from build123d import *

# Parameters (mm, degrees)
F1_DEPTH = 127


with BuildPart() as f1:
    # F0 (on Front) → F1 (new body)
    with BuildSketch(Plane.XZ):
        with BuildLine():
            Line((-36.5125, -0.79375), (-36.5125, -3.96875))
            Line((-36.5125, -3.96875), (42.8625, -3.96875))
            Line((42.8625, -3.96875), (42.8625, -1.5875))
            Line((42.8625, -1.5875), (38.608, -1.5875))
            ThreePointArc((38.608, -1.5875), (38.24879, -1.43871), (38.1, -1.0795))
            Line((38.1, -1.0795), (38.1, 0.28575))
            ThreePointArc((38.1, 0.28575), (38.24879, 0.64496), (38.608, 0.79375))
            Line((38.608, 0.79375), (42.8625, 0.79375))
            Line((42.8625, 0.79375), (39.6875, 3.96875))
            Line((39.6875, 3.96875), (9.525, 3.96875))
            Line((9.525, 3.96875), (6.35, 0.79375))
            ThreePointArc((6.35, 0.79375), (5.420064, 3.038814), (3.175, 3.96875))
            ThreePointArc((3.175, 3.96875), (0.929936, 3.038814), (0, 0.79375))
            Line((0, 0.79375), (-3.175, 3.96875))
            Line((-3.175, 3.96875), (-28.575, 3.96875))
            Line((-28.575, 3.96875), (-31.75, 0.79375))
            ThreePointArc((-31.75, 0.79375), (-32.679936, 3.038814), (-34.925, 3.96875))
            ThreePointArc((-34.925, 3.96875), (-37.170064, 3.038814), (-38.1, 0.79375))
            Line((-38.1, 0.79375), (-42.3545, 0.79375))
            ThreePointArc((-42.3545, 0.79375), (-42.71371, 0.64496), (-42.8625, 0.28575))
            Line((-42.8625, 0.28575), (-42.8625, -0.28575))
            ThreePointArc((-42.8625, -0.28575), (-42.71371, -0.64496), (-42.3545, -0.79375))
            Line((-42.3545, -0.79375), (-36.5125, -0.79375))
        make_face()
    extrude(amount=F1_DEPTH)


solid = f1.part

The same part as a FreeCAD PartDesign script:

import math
import FreeCAD as App
import Part
import Sketcher
from FreeCAD import Vector
Q = App.Units.Quantity

doc = App.newDocument("Part")
body = doc.addObject("PartDesign::Body", "Body")

# Sketch on XZ plane
sketch1 = body.newObject("Sketcher::SketchObject", "Sketch")
sketch1.AttachmentSupport = (doc.getObject("XZ_Plane"), [""])
sketch1.MapMode = "FlatFace"
sketch1.addGeometry(Part.LineSegment(Vector(-36.5, -0.8, 0), Vector(-36.5, -4, 0)), False)
sketch1.addGeometry(Part.LineSegment(Vector(-36.5, -4, 0), Vector(42.9, -4, 0)), False)
sketch1.addGeometry(Part.LineSegment(Vector(42.9, -4, 0), Vector(42.9, -1.6, 0)), False)
sketch1.addGeometry(Part.LineSegment(Vector(42.9, -1.6, 0), Vector(38.6, -1.6, 0)), False)
sketch1.addGeometry(Part.ArcOfCircle(Part.Circle(Vector(38.6, -1.1, 0), Vector(0, 0, 1), 0.5), math.radians(-180), math.radians(-90)), False)
sketch1.addGeometry(Part.LineSegment(Vector(38.1, -1.1, 0), Vector(38.1, 0.3, 0)), False)
sketch1.addGeometry(Part.ArcOfCircle(Part.Circle(Vector(38.6, 0.3, 0), Vector(0, 0, 1), 0.5), math.radians(90), math.radians(180)), False)
sketch1.addGeometry(Part.LineSegment(Vector(38.6, 0.8, 0), Vector(42.9, 0.8, 0)), False)
sketch1.addGeometry(Part.LineSegment(Vector(42.9, 0.8, 0), Vector(39.7, 4, 0)), False)
sketch1.addGeometry(Part.LineSegment(Vector(39.7, 4, 0), Vector(9.5, 4, 0)), False)
sketch1.addGeometry(Part.LineSegment(Vector(9.5, 4, 0), Vector(6.3, 0.8, 0)), False)
sketch1.addGeometry(Part.ArcOfCircle(Part.Circle(Vector(3.2, 0.8, 0), Vector(0, 0, 1), 3.2), math.radians(0), math.radians(90)), False)
sketch1.addGeometry(Part.ArcOfCircle(Part.Circle(Vector(3.2, 0.8, 0), Vector(0, 0, 1), 3.2), math.radians(90), math.radians(180)), False)
sketch1.addGeometry(Part.LineSegment(Vector(0, 0.8, 0), Vector(-3.2, 4, 0)), False)
sketch1.addGeometry(Part.LineSegment(Vector(-3.2, 4, 0), Vector(-28.6, 4, 0)), False)
sketch1.addGeometry(Part.LineSegment(Vector(-28.6, 4, 0), Vector(-31.8, 0.8, 0)), False)
sketch1.addGeometry(Part.ArcOfCircle(Part.Circle(Vector(-34.9, 0.8, 0), Vector(0, 0, 1), 3.2), math.radians(0), math.radians(90)), False)
sketch1.addGeometry(Part.ArcOfCircle(Part.Circle(Vector(-34.9, 0.8, 0), Vector(0, 0, 1), 3.2), math.radians(90), math.radians(180)), False)
sketch1.addGeometry(Part.LineSegment(Vector(-38.1, 0.8, 0), Vector(-42.4, 0.8, 0)), False)
sketch1.addGeometry(Part.ArcOfCircle(Part.Circle(Vector(-42.4, 0.3, 0), Vector(0, 0, 1), 0.5), math.radians(90), math.radians(180)), False)
sketch1.addGeometry(Part.LineSegment(Vector(-42.9, 0.3, 0), Vector(-42.9, -0.3, 0)), False)
sketch1.addGeometry(Part.ArcOfCircle(Part.Circle(Vector(-42.4, -0.3, 0), Vector(0, 0, 1), 0.5), math.radians(-180), math.radians(-90)), False)
sketch1.addGeometry(Part.LineSegment(Vector(-42.4, -0.8, 0), Vector(-36.5, -0.8, 0)), False)
sketch1.addConstraint(Sketcher.Constraint("Coincident", 0, 2, 1, 1))
sketch1.addConstraint(Sketcher.Constraint("Coincident", 1, 2, 2, 1))
sketch1.addConstraint(Sketcher.Constraint("Coincident", 2, 2, 3, 1))
sketch1.addConstraint(Sketcher.Constraint("Tangent", 3, 2, 4, 2))
sketch1.addConstraint(Sketcher.Constraint("Tangent", 4, 1, 5, 1))
sketch1.addConstraint(Sketcher.Constraint("Tangent", 5, 2, 6, 2))
sketch1.addConstraint(Sketcher.Constraint("Tangent", 6, 1, 7, 1))
sketch1.addConstraint(Sketcher.Constraint("Coincident", 7, 2, 8, 1))
sketch1.addConstraint(Sketcher.Constraint("Coincident", 8, 2, 9, 1))
sketch1.addConstraint(Sketcher.Constraint("Coincident", 9, 2, 10, 1))
sketch1.addConstraint(Sketcher.Constraint("Coincident", 10, 2, 11, 1))
sketch1.addConstraint(Sketcher.Constraint("Tangent", 11, 2, 12, 1))
sketch1.addConstraint(Sketcher.Constraint("Coincident", 12, 2, 13, 1))
sketch1.addConstraint(Sketcher.Constraint("Coincident", 13, 2, 14, 1))
sketch1.addConstraint(Sketcher.Constraint("Coincident", 14, 2, 15, 1))
sketch1.addConstraint(Sketcher.Constraint("Coincident", 15, 2, 16, 1))
sketch1.addConstraint(Sketcher.Constraint("Tangent", 16, 2, 17, 1))
sketch1.addConstraint(Sketcher.Constraint("Coincident", 17, 2, 18, 1))
sketch1.addConstraint(Sketcher.Constraint("Tangent", 18, 2, 19, 1))
sketch1.addConstraint(Sketcher.Constraint("Tangent", 19, 2, 20, 1))
sketch1.addConstraint(Sketcher.Constraint("Tangent", 20, 2, 21, 1))
sketch1.addConstraint(Sketcher.Constraint("Tangent", 21, 2, 22, 1))
sketch1.addConstraint(Sketcher.Constraint("Coincident", 22, 2, 0, 1))
sketch1.addConstraint(Sketcher.Constraint("Vertical", 0))
sketch1.addConstraint(Sketcher.Constraint("Horizontal", 1))
sketch1.addConstraint(Sketcher.Constraint("Vertical", 2))
sketch1.addConstraint(Sketcher.Constraint("Horizontal", 3))
sketch1.addConstraint(Sketcher.Constraint("Vertical", 5))
sketch1.addConstraint(Sketcher.Constraint("Horizontal", 7))
sketch1.addConstraint(Sketcher.Constraint("Horizontal", 9))
sketch1.addConstraint(Sketcher.Constraint("Horizontal", 14))
sketch1.addConstraint(Sketcher.Constraint("Horizontal", 18))
sketch1.addConstraint(Sketcher.Constraint("Vertical", 20))
sketch1.addConstraint(Sketcher.Constraint("Horizontal", 22))
sketch1.addConstraint(Sketcher.Constraint("Equal", 4, 6))
sketch1.addConstraint(Sketcher.Constraint("Equal", 11, 12))
sketch1.addConstraint(Sketcher.Constraint("Equal", 12, 16))
sketch1.addConstraint(Sketcher.Constraint("Equal", 16, 17))
sketch1.addConstraint(Sketcher.Constraint("Equal", 6, 19))
sketch1.addConstraint(Sketcher.Constraint("Equal", 19, 21))
sketch1.addConstraint(Sketcher.Constraint("Symmetric", 11, 2, 13, 2, -2))
sketch1.addConstraint(Sketcher.Constraint("PointOnObject", 12, 2, -2))
sketch1.addConstraint(Sketcher.Constraint("Perpendicular", 8, 10))
sketch1.addConstraint(Sketcher.Constraint("Perpendicular", 10, 13))
sketch1.addConstraint(Sketcher.Constraint("Perpendicular", 13, 15))
sketch1.addConstraint(Sketcher.Constraint("Horizontal", 12, 3, 16, 3))
sketch1.addConstraint(Sketcher.Constraint("Horizontal", 6, 3, 19, 3))
sketch1.addConstraint(Sketcher.Constraint("Horizontal", 17, 3, 6, 1))
sketch1.addConstraint(Sketcher.Constraint("Horizontal", 7, 2, 10, 2))
sketch1.addConstraint(Sketcher.Constraint("Horizontal", 9, 2, 11, 2))
sketch1.addConstraint(Sketcher.Constraint("Horizontal", 10, 2, 12, 2))
sketch1.addConstraint(Sketcher.Constraint("Horizontal", 12, 2, 15, 2))
sketch1.addConstraint(Sketcher.Constraint("Vertical", 2, 2, 7, 2))
sketch1.addConstraint(Sketcher.Constraint("Vertical", 12, 3, 11, 2))
sketch1.addConstraint(Sketcher.Constraint("Vertical", 17, 3, 16, 2))
sketch1.addConstraint(Sketcher.Constraint("Equal", 7, 18))
sketch1.addConstraint(Sketcher.Constraint("DistanceX", 14, 2, 14, 1, Q("1 in")))
sketch1.addConstraint(Sketcher.Constraint("Radius", 4, Q("0.02 in")))
sketch1.addConstraint(Sketcher.Constraint("Radius", 11, Q("0.125 in")))
sketch1.addConstraint(Sketcher.Constraint("DistanceX", 22, 1, 22, 2, Q("0.23 in")))
sketch1.addConstraint(Sketcher.Constraint("DistanceX", -1, 1, 4, 1, Q("1.5 in")))
sketch1.addConstraint(Sketcher.Constraint("DistanceX", 1, 1, 1, 2, Q("3.125 in")))
sketch1.addConstraint(Sketcher.Constraint("DistanceY", 0, 2, 0, 1, Q("0.125 in")))
sketch1.addConstraint(Sketcher.Constraint("DistanceY", 2, 1, 2, 2, Q("0.09375 in")))
sketch1.addConstraint(Sketcher.Constraint("DistanceY", 20, 2, 20, 1, Q("0.0225 in")))
sketch1.addConstraint(Sketcher.Constraint("DistanceY", -1, 1, 11, 3, Q("0.03125 in")))
pad1 = body.newObject("PartDesign::Pad", "Pad")
pad1.Profile = sketch1
pad1.Length = Q("5 in")

doc.recompute()
